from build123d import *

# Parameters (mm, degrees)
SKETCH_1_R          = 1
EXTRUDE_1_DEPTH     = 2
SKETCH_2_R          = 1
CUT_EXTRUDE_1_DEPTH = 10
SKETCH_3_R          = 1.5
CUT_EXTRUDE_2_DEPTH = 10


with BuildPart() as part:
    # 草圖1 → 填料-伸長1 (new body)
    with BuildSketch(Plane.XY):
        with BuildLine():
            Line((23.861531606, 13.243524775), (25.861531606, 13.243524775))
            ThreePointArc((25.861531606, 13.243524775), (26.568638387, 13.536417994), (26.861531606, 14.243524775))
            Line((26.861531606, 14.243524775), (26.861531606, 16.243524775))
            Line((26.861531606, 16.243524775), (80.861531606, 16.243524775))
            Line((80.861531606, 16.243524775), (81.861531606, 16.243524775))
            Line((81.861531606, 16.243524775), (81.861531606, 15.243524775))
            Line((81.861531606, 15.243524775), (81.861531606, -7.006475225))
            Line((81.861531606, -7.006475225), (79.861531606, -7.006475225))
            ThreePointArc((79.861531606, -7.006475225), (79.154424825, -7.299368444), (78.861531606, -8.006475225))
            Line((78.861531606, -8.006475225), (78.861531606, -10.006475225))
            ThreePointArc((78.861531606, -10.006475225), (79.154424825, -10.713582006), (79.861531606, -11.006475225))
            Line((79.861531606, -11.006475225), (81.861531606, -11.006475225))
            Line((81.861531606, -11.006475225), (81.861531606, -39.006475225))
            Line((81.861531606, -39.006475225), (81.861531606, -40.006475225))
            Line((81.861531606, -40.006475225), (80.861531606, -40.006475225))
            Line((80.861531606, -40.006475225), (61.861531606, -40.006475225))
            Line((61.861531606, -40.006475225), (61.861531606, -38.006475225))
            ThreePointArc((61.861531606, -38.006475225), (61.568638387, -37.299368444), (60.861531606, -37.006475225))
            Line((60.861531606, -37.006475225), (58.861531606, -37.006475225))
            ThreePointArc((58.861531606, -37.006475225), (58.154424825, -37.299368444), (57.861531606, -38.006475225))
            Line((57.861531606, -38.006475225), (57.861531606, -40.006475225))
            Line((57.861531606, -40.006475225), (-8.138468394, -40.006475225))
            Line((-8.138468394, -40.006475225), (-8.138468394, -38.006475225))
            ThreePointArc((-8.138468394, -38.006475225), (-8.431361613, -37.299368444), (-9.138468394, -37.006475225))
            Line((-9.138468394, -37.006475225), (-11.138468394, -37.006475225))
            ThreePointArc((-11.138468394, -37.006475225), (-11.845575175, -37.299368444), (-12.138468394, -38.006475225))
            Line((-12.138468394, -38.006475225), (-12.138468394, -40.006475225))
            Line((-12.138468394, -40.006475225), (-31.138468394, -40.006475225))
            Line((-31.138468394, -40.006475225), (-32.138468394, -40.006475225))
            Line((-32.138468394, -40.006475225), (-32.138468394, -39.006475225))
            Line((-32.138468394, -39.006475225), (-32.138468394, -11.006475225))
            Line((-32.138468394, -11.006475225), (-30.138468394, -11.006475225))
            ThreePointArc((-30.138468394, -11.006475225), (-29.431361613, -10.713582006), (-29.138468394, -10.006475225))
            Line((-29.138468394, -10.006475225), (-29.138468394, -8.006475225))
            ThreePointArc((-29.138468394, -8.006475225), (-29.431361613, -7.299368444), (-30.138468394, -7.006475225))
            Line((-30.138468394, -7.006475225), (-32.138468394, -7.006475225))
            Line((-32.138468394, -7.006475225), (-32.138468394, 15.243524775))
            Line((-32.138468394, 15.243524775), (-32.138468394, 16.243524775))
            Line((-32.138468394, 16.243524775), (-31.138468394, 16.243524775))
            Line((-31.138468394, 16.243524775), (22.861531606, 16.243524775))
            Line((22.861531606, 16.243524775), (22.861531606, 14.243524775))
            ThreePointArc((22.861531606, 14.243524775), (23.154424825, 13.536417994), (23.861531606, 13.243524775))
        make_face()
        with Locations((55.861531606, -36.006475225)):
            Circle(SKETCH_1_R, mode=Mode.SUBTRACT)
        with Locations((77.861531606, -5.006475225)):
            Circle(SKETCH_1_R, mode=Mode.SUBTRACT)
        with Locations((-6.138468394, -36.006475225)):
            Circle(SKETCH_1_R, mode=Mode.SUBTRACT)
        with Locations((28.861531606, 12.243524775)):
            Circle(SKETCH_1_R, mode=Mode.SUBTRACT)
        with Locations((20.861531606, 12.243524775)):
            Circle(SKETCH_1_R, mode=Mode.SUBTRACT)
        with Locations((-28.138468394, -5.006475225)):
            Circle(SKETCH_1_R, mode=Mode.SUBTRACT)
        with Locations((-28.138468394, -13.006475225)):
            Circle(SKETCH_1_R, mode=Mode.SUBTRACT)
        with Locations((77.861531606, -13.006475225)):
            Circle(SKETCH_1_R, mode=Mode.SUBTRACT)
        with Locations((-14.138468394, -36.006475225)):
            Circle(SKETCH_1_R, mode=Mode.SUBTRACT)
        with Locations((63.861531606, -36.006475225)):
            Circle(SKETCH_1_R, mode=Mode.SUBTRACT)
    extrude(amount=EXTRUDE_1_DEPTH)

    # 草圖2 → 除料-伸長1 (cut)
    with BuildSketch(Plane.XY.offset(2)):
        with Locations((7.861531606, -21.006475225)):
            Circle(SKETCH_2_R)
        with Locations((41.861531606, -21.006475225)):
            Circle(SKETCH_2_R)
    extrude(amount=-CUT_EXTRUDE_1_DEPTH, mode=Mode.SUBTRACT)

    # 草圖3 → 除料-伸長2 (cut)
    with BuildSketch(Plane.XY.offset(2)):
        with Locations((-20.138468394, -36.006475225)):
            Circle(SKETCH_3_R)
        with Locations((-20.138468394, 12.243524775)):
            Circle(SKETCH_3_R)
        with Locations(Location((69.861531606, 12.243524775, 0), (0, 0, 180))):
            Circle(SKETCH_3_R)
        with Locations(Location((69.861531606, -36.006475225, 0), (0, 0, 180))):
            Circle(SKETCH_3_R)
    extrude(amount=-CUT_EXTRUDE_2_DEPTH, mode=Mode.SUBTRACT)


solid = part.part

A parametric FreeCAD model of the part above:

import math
import FreeCAD as App
import Part
import Sketcher

doc = App.newDocument("Part")
params = doc.addObject("Spreadsheet::Sheet", "Params")
for row, (alias, value) in enumerate([
    ("sketch1_diameter", "2 mm"),
    ("sketch1_width", "2 mm"),
    ("sketch1_width2", "55 mm"),
    ("sketch1_width3", "20 mm"),
    ("sketch1_height", "29 mm"),
    ("pad1_length", "2 mm"),
    ("sketch2_diameter", "2 mm"),
    ("pocket1_length", "10 mm"),
    ("sketch3_diameter", "3 mm"),
    ("pocket2_length", "10 mm"),
], start=1):
    params.set(f"A{row}", alias)
    params.set(f"B{row}", "=" + value)
    params.setAlias(f"B{row}", alias)

body = doc.addObject("PartDesign::Body", "Body")

sketch1 = doc.addObject("Sketcher::SketchObject", "Sketch")
body.addObject(sketch1)
sketch1.AttachmentSupport = (doc.XY_Plane, [""])
sketch1.MapMode = "FlatFace"
sketch1.addGeometry(Part.LineSegment(App.Vector(25.861532, 13.243525, 0), App.Vector(23.861532, 13.243525, 0)), False)
sketch1.addGeometry(Part.ArcOfCircle(Part.Circle(App.Vector(23.861532, 14.243525, 0), App.Vector(0, 0, 1), 1), math.radians(-180), math.radians(-90)), False)
sketch1.addGeometry(Part.LineSegment(App.Vector(22.861532, 14.243525, 0), App.Vector(22.861532, 16.243525, 0)), False)
sketch1.addGeometry(Part.LineSegment(App.Vector(22.861532, 16.243525, 0), App.Vector(-32.138468, 16.243525, 0)), False)
sketch1.addGeometry(Part.LineSegment(App.Vector(-32.138468, 16.243525, 0), App.Vector(-32.138468, -7.006475, 0)), False)
sketch1.addGeometry(Part.LineSegment(App.Vector(-32.138468, -7.006475, 0), App.Vector(-30.138468, -7.006475, 0)), False)
sketch1.addGeometry(Part.ArcOfCircle(Part.Circle(App.Vector(-30.138468, -8.006475, 0), App.Vector(0, 0, 1), 1), math.radians(0), math.radians(90)), False)
sketch1.addGeometry(Part.LineSegment(App.Vector(-29.138468, -8.006475, 0), App.Vector(-29.138468, -10.006475, 0)), False)
sketch1.addGeometry(Part.ArcOfCircle(Part.Circle(App.Vector(-30.138468, -10.006475, 0), App.Vector(0, 0, 1), 1), math.radians(-90), math.radians(0)), False)
sketch1.addGeometry(Part.LineSegment(App.Vector(-30.138468, -11.006475, 0), App.Vector(-32.138468, -11.006475, 0)), False)
sketch1.addGeometry(Part.LineSegment(App.Vector(-32.138468, -11.006475, 0), App.Vector(-32.138468, -40.006475, 0)), False)
sketch1.addGeometry(Part.LineSegment(App.Vector(-32.138468, -40.006475, 0), App.Vector(-12.138468, -40.006475, 0)), False)
sketch1.addGeometry(Part.LineSegment(App.Vector(-12.138468, -40.006475, 0), App.Vector(-12.138468, -38.006475, 0)), False)
sketch1.addGeometry(Part.ArcOfCircle(Part.Circle(App.Vector(-11.138468, -38.006475, 0), App.Vector(0, 0, 1), 1), math.radians(90), math.radians(180)), False)
sketch1.addGeometry(Part.LineSegment(App.Vector(-11.138468, -37.006475, 0), App.Vector(-9.138468, -37.006475, 0)), False)
sketch1.addGeometry(Part.ArcOfCircle(Part.Circle(App.Vector(-9.138468, -38.006475, 0), App.Vector(0, 0, 1), 1), math.radians(0), math.radians(90)), False)
sketch1.addGeometry(Part.LineSegment(App.Vector(-8.138468, -38.006475, 0), App.Vector(-8.138468, -40.006475, 0)), False)
sketch1.addGeometry(Part.LineSegment(App.Vector(-8.138468, -40.006475, 0), App.Vector(57.861532, -40.006475, 0)), False)
sketch1.addGeometry(Part.LineSegment(App.Vector(57.861532, -40.006475, 0), App.Vector(57.861532, -38.006475, 0)), False)
sketch1.addGeometry(Part.ArcOfCircle(Part.Circle(App.Vector(58.861532, -38.006475, 0), App.Vector(0, 0, 1), 1), math.radians(90), math.radians(180)), False)
sketch1.addGeometry(Part.LineSegment(App.Vector(58.861532, -37.006475, 0), App.Vector(60.861532, -37.006475, 0)), False)
sketch1.addGeometry(Part.ArcOfCircle(Part.Circle(App.Vector(60.861532, -38.006475, 0), App.Vector(0, 0, 1), 1), math.radians(0), math.radians(90)), False)
sketch1.addGeometry(Part.LineSegment(App.Vector(61.861532, -38.006475, 0), App.Vector(61.861532, -40.006475, 0)), False)
sketch1.addGeometry(Part.LineSegment(App.Vector(61.861532, -40.006475, 0), App.Vector(81.861532, -40.006475, 0)), False)
sketch1.addGeometry(Part.LineSegment(App.Vector(81.861532, -40.006475, 0), App.Vector(81.861532, -11.006475, 0)), False)
sketch1.addGeometry(Part.LineSegment(App.Vector(81.861532, -11.006475, 0), App.Vector(79.861532, -11.006475, 0)), False)
sketch1.addGeometry(Part.ArcOfCircle(Part.Circle(App.Vector(79.861532, -10.006475, 0), App.Vector(0, 0, 1), 1), math.radians(-180), math.radians(-90)), False)
sketch1.addGeometry(Part.LineSegment(App.Vector(78.861532, -10.006475, 0), App.Vector(78.861532, -8.006475, 0)), False)
sketch1.addGeometry(Part.ArcOfCircle(Part.Circle(App.Vector(79.861532, -8.006475, 0), App.Vector(0, 0, 1), 1), math.radians(90), math.radians(180)), False)
sketch1.addGeometry(Part.LineSegment(App.Vector(79.861532, -7.006475, 0), App.Vector(81.861532, -7.006475, 0)), False)
sketch1.addGeometry(Part.LineSegment(App.Vector(81.861532, -7.006475, 0), App.Vector(81.861532, 16.243525, 0)), False)
sketch1.addGeometry(Part.LineSegment(App.Vector(81.861532, 16.243525, 0), App.Vector(26.861532, 16.243525, 0)), False)
sketch1.addGeometry(Part.LineSegment(App.Vector(26.861532, 16.243525, 0), App.Vector(26.861532, 14.243525, 0)), False)
sketch1.addGeometry(Part.ArcOfCircle(Part.Circle(App.Vector(25.861532, 14.243525, 0), App.Vector(0, 0, 1), 1), math.radians(-90), math.radians(0)), False)
sketch1.addGeometry(Part.Circle(App.Vector(63.861532, -36.006475, 0), App.Vector(0, 0, 1), 1), False)
sketch1.addGeometry(Part.Circle(App.Vector(55.861532, -36.006475, 0), App.Vector(0, 0, 1), 1), False)
sketch1.addGeometry(Part.Circle(App.Vector(77.861532, -13.006475, 0), App.Vector(0, 0, 1), 1), False)
sketch1.addGeometry(Part.Circle(App.Vector(-6.138468, -36.006475, 0), App.Vector(0, 0, 1), 1), False)
sketch1.addGeometry(Part.Circle(App.Vector(-14.138468, -36.006475, 0), App.Vector(0, 0, 1), 1), False)
sketch1.addGeometry(Part.Circle(App.Vector(-28.138468, -13.006475, 0), App.Vector(0, 0, 1), 1), False)
sketch1.addGeometry(Part.Circle(App.Vector(77.861532, -5.006475, 0), App.Vector(0, 0, 1), 1), False)
sketch1.addGeometry(Part.Circle(App.Vector(28.861532, 12.243525, 0), App.Vector(0, 0, 1), 1), False)
sketch1.addGeometry(Part.Circle(App.Vector(-28.138468, -5.006475, 0), App.Vector(0, 0, 1), 1), False)
sketch1.addGeometry(Part.Circle(App.Vector(20.861532, 12.243525, 0), App.Vector(0, 0, 1), 1), False)
sketch1.addConstraint(Sketcher.Constraint("Tangent", 0, 2, 1, 2))
sketch1.addConstraint(Sketcher.Constraint("Tangent", 1, 1, 2, 1))
sketch1.addConstraint(Sketcher.Constraint("Coincident", 2, 2, 3, 1))
sketch1.addConstraint(Sketcher.Constraint("Coincident", 3, 2, 4, 1))
sketch1.addConstraint(Sketcher.Constraint("Coincident", 4, 2, 5, 1))
sketch1.addConstraint(Sketcher.Constraint("Tangent", 5, 2, 6, 2))
sketch1.addConstraint(Sketcher.Constraint("Tangent", 6, 1, 7, 1))
sketch1.addConstraint(Sketcher.Constraint("Tangent", 7, 2, 8, 2))
sketch1.addConstraint(Sketcher.Constraint("Tangent", 8, 1, 9, 1))
sketch1.addConstraint(Sketcher.Constraint("Coincident", 9, 2, 10, 1))
sketch1.addConstraint(Sketcher.Constraint("Coincident", 10, 2, 11, 1))
sketch1.addConstraint(Sketcher.Constraint("Coincident", 11, 2, 12, 1))
sketch1.addConstraint(Sketcher.Constraint("Tangent", 12, 2, 13, 2))
sketch1.addConstraint(Sketcher.Constraint("Tangent", 13, 1, 14, 1))
sketch1.addConstraint(Sketcher.Constraint("Tangent", 14, 2, 15, 2))
sketch1.addConstraint(Sketcher.Constraint("Tangent", 15, 1, 16, 1))
sketch1.addConstraint(Sketcher.Constraint("Coincident", 16, 2, 17, 1))
sketch1.addConstraint(Sketcher.Constraint("Coincident", 17, 2, 18, 1))
sketch1.addConstraint(Sketcher.Constraint("Tangent", 18, 2, 19, 2))
sketch1.addConstraint(Sketcher.Constraint("Tangent", 19, 1, 20, 1))
sketch1.addConstraint(Sketcher.Constraint("Tangent", 20, 2, 21, 2))
sketch1.addConstraint(Sketcher.Constraint("Tangent", 21, 1, 22, 1))
sketch1.addConstraint(Sketcher.Constraint("Coincident", 22, 2, 23, 1))
sketch1.addConstraint(Sketcher.Constraint("Coincident", 23, 2, 24, 1))
sketch1.addConstraint(Sketcher.Constraint("Coincident", 24, 2, 25, 1))
sketch1.addConstraint(Sketcher.Constraint("Tangent", 25, 2, 26, 2))
sketch1.addConstraint(Sketcher.Constraint("Tangent", 26, 1, 27, 1))
sketch1.addConstraint(Sketcher.Constraint("Tangent", 27, 2, 28, 2))
sketch1.addConstraint(Sketcher.Constraint("Tangent", 28, 1, 29, 1))
sketch1.addConstraint(Sketcher.Constraint("Coincident", 29, 2, 30, 1))
sketch1.addConstraint(Sketcher.Constraint("Coincident", 30, 2, 31, 1))
sketch1.addConstraint(Sketcher.Constraint("Coincident", 31, 2, 32, 1))
sketch1.addConstraint(Sketcher.Constraint("Tangent", 32, 2, 33, 2))
sketch1.addConstraint(Sketcher.Constraint("Tangent", 33, 1, 0, 1))
sketch1.addConstraint(Sketcher.Constraint("Horizontal", 0))
sketch1.addConstraint(Sketcher.Constraint("Vertical", 2))
sketch1.addConstraint(Sketcher.Constraint("Horizontal", 3))
sketch1.addConstraint(Sketcher.Constraint("Vertical", 4))
sketch1.addConstraint(Sketcher.Constraint("Horizontal", 5))
sketch1.addConstraint(Sketcher.Constraint("Vertical", 7))
sketch1.addConstraint(Sketcher.Constraint("Horizontal", 9))
sketch1.addConstraint(Sketcher.Constraint("Vertical", 10))
sketch1.addConstraint(Sketcher.Constraint("Horizontal", 11))
sketch1.addConstraint(Sketcher.Constraint("Vertical", 12))
sketch1.addConstraint(Sketcher.Constraint("Horizontal", 14))
sketch1.addConstraint(Sketcher.Constraint("Vertical", 16))
sketch1.addConstraint(Sketcher.Constraint("Horizontal", 17))
sketch1.addConstraint(Sketcher.Constraint("Vertical", 18))
sketch1.addConstraint(Sketcher.Constraint("Horizontal", 20))
sketch1.addConstraint(Sketcher.Constraint("Vertical", 22))
sketch1.addConstraint(Sketcher.Constraint("Horizontal", 23))
sketch1.addConstraint(Sketcher.Constraint("Vertical", 24))
sketch1.addConstraint(Sketcher.Constraint("Horizontal", 25))
sketch1.addConstraint(Sketcher.Constraint("Vertical", 27))
sketch1.addConstraint(Sketcher.Constraint("Horizontal", 29))
sketch1.addConstraint(Sketcher.Constraint("Vertical", 30))
sketch1.addConstraint(Sketcher.Constraint("Horizontal", 31))
sketch1.addConstraint(Sketcher.Constraint("Vertical", 32))
sketch1.addConstraint(Sketcher.Constraint("Equal", 1, 6))
sketch1.addConstraint(Sketcher.Constraint("Equal", 6, 8))
sketch1.addConstraint(Sketcher.Constraint("Equal", 8, 13))
sketch1.addConstraint(Sketcher.Constraint("Equal", 13, 15))
sketch1.addConstraint(Sketcher.Constraint("Equal", 15, 19))
sketch1.addConstraint(Sketcher.Constraint("Equal", 19, 21))
sketch1.addConstraint(Sketcher.Constraint("Equal", 21, 26))
sketch1.addConstraint(Sketcher.Constraint("Equal", 26, 28))
sketch1.addConstraint(Sketcher.Constraint("Equal", 28, 33))
sketch1.addConstraint(Sketcher.Constraint("Equal", 33, 34))
sketch1.addConstraint(Sketcher.Constraint("Equal", 34, 35))
sketch1.addConstraint(Sketcher.Constraint("Equal", 35, 36))
sketch1.addConstraint(Sketcher.Constraint("Equal", 36, 37))
sketch1.addConstraint(Sketcher.Constraint("Equal", 37, 38))
sketch1.addConstraint(Sketcher.Constraint("Equal", 38, 39))
sketch1.addConstraint(Sketcher.Constraint("Equal", 39, 40))
sketch1.addConstraint(Sketcher.Constraint("Equal", 40, 41))
sketch1.addConstraint(Sketcher.Constraint("Equal", 41, 42))
sketch1.addConstraint(Sketcher.Constraint("Equal", 42, 43))
sketch1.addConstraint(Sketcher.Constraint("Horizontal", 15, 3, 19, 3))
sketch1.addConstraint(Sketcher.Constraint("Horizontal", 8, 3, 26, 3))
sketch1.addConstraint(Sketcher.Constraint("Horizontal", 6, 3, 28, 3))
sketch1.addConstraint(Sketcher.Constraint("Horizontal", 34, 3, 35, 3))
sketch1.addConstraint(Sketcher.Constraint("Horizontal", 35, 3, 37, 3))
sketch1.addConstraint(Sketcher.Constraint("Horizontal", 37, 3, 38, 3))
sketch1.addConstraint(Sketcher.Constraint("Horizontal", 36, 3, 39, 3))
sketch1.addConstraint(Sketcher.Constraint("Horizontal", 40, 3, 42, 3))
sketch1.addConstraint(Sketcher.Constraint("Horizontal", 41, 3, 43, 3))
sketch1.addConstraint(Sketcher.Constraint("Horizontal", 11, 2, 16, 2))
sketch1.addConstraint(Sketcher.Constraint("Horizontal", 17, 2, 22, 2))
sketch1.addConstraint(Sketcher.Constraint("Horizontal", 3, 2, 30, 2))
sketch1.addConstraint(Sketcher.Constraint("Vertical", 36, 3, 40, 3))
sketch1.addConstraint(Sketcher.Constraint("Vertical", 39, 3, 42, 3))
sketch1.addConstraint(Sketcher.Constraint("Vertical", 4, 2, 9, 2))
sketch1.addConstraint(Sketcher.Constraint("Vertical", 24, 2, 29, 2))
sketch1.addConstraint(Sketcher.Constraint("Equal", 0, 5))
sketch1.addConstraint(Sketcher.Constraint("Equal", 9, 14))
sketch1.addConstraint(Sketcher.Constraint("Equal", 14, 20))
sketch1.addConstraint(Sketcher.Constraint("Equal", 11, 23))
sketch1.addConstraint(Sketcher.Constraint("Equal", 20, 25))
sketch1.addConstraint(Sketcher.Constraint("Equal", 3, 31))
sketch1.addConstraint(Sketcher.Constraint("Equal", 29, 2))
sketch1.addConstraint(Sketcher.Constraint("Equal", 2, 7))
sketch1.addConstraint(Sketcher.Constraint("Equal", 7, 12))
sketch1.addConstraint(Sketcher.Constraint("Diameter", 34, 2.0))
sketch1.addConstraint(Sketcher.Constraint("DistanceX", 0, 2, 0, 1, 2.0))
sketch1.addConstraint(Sketcher.Constraint("DistanceX", 3, 2, 3, 1, 55.0))
sketch1.addConstraint(Sketcher.Constraint("DistanceX", 11, 1, 11, 2, 20.0))
sketch1.addConstraint(Sketcher.Constraint("DistanceY", 10, 2, 10, 1, 29.0))
sketch1.addConstraint(Sketcher.Constraint("DistanceX", 21, 3, 34, 3, 3.0))
sketch1.addConstraint(Sketcher.Constraint("DistanceY", 21, 3, 34, 3, 2.0))
sketch1.addConstraint(Sketcher.Constraint("DistanceX", 35, 3, 19, 3, 3.0))
sketch1.addConstraint(Sketcher.Constraint("DistanceX", 36, 3, 26, 3, 2.0))
sketch1.addConstraint(Sketcher.Constraint("DistanceY", 36, 3, 26, 3, 3.0))
sketch1.addConstraint(Sketcher.Constraint("DistanceX", 15, 3, 37, 3, 3.0))
sketch1.addConstraint(Sketcher.Constraint("DistanceX", 38, 3, 13, 3, 3.0))
sketch1.addConstraint(Sketcher.Constraint("DistanceX", 8, 3, 39, 3, 2.0))
sketch1.addConstraint(Sketcher.Constraint("DistanceY", 28, 3, 40, 3, 3.0))
sketch1.addConstraint(Sketcher.Constraint("DistanceX", 33, 3, 41, 3, 3.0))
sketch1.addConstraint(Sketcher.Constraint("DistanceY", 41, 3, 33, 3, 2.0))
sketch1.addConstraint(Sketcher.Constraint("DistanceX", 43, 3, 1, 3, 3.0))
sketch1.addConstraint(Sketcher.Constraint("DistanceY", 4, 2, 4, 1, 23.25))
sketch1.addConstraint(Sketcher.Constraint("DistanceX", -1, 1, 1, 3, 23.861532))
sketch1.addConstraint(Sketcher.Constraint("DistanceY", -1, 1, 1, 3, 14.243525))
sketch1.setExpression("Constraints[102]", "Params.sketch1_diameter")
sketch1.setExpression("Constraints[103]", "Params.sketch1_width")
sketch1.setExpression("Constraints[104]", "Params.sketch1_width2")
sketch1.setExpression("Constraints[105]", "Params.sketch1_width3")
sketch1.setExpression("Constraints[106]", "Params.sketch1_height")
pad1 = doc.addObject("PartDesign::Pad", "Pad")
body.addObject(pad1)
pad1.Profile = sketch1
pad1.setExpression("Length", "Params.pad1_length")

sketch2 = doc.addObject("Sketcher::SketchObject", "Sketch001")
body.addObject(sketch2)
sketch2.AttachmentSupport = (doc.XY_Plane, [""])
sketch2.MapMode = "FlatFace"
sketch2.AttachmentOffset = App.Placement(App.Vector(0, 0, 2), App.Rotation())
sketch2.addGeometry(Part.Circle(App.Vector(7.861532, -21.006475, 0), App.Vector(0, 0, 1), 1), False)
sketch2.addGeometry(Part.Circle(App.Vector(41.861532, -21.006475, 0), App.Vector(0, 0, 1), 1), False)
sketch2.addConstraint(Sketcher.Constraint("Equal", 0, 1))
sketch2.addConstraint(Sketcher.Constraint("Horizontal", 0, 3, 1, 3))
sketch2.addConstraint(Sketcher.Constraint("Diameter", 0, 2.0))
sketch2.addConstraint(Sketcher.Constraint("DistanceX", 0, 3, 1, 3, 34.0))
sketch2.addConstraint(Sketcher.Constraint("DistanceX", -1, 1, 0, 3, 7.861532))
sketch2.addConstraint(Sketcher.Constraint("DistanceY", 0, 3, -1, 1, 21.006475))
sketch2.setExpression("Constraints[2]", "Params.sketch2_diameter")
pocket1 = doc.addObject("PartDesign::Pocket", "Pocket")
body.addObject(pocket1)
pocket1.Profile = sketch2
pocket1.setExpression("Length", "Params.pocket1_length")

sketch3 = doc.addObject("Sketcher::SketchObject", "Sketch002")
body.addObject(sketch3)
sketch3.AttachmentSupport = (doc.XY_Plane, [""])
sketch3.MapMode = "FlatFace"
sketch3.AttachmentOffset = App.Placement(App.Vector(0, 0, 2), App.Rotation())
sketch3.addGeometry(Part.Circle(App.Vector(-20.138468, -36.006475, 0), App.Vector(0, 0, 1), 1.5), False)
sketch3.addGeometry(Part.Circle(App.Vector(-20.138468, 12.243525, 0), App.Vector(0, 0, 1), 1.5), False)
sketch3.addGeometry(Part.Circle(App.Vector(69.861532, 12.243525, 0), App.Vector(0, 0, 1), 1.5), False)
sketch3.addGeometry(Part.Circle(App.Vector(69.861532, -36.006475, 0), App.Vector(0, 0, 1), 1.5), False)
sketch3.addConstraint(Sketcher.Constraint("Equal", 0, 1))
sketch3.addConstraint(Sketcher.Constraint("Equal", 1, 2))
sketch3.addConstraint(Sketcher.Constraint("Equal", 2, 3))
sketch3.addConstraint(Sketcher.Constraint("Horizontal", 1, 3, 2, 3))
sketch3.addConstraint(Sketcher.Constraint("Horizontal", 0, 3, 3, 3))
sketch3.addConstraint(Sketcher.Constraint("Vertical", 0, 3, 1, 3))
sketch3.addConstraint(Sketcher.Constraint("Vertical", 2, 3, 3, 3))
sketch3.addConstraint(Sketcher.Constraint("Diameter", 0, 3.0))
sketch3.addConstraint(Sketcher.Constraint("DistanceX", 1, 3, 2, 3, 90.0))
sketch3.addConstraint(Sketcher.Constraint("DistanceY", 0, 3, 1, 3, 48.25))
sketch3.addConstraint(Sketcher.Constraint("DistanceX", 0, 3, -1, 1, 20.138468))
sketch3.addConstraint(Sketcher.Constraint("DistanceY", 0, 3, -1, 1, 36.006475))
sketch3.setExpression("Constraints[7]", "Params.sketch3_diameter")
pocket2 = doc.addObject("PartDesign::Pocket", "Pocket001")
body.addObject(pocket2)
pocket2.Profile = sketch3
pocket2.setExpression("Length", "Params.pocket2_length")

doc.recompute()
